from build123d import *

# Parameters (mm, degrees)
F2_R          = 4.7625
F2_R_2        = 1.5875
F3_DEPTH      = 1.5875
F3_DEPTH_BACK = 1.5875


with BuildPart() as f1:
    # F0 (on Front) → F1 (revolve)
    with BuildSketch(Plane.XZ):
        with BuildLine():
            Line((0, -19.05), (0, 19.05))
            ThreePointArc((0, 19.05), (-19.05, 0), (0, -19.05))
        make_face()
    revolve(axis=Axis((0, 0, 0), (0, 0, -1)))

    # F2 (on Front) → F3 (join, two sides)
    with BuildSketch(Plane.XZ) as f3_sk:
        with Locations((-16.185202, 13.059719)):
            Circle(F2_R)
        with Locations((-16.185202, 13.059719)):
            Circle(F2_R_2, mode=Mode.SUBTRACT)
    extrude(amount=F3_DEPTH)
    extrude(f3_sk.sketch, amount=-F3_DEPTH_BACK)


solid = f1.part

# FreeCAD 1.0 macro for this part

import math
import FreeCAD as App
import Part
import Sketcher
from FreeCAD import Vector
Q = App.Units.Quantity

doc = App.newDocument("Part")
body = doc.addObject("PartDesign::Body", "Body")

sketch1 = body.newObject("Sketcher::SketchObject", "Sketch")
sketch1.AttachmentSupport = (doc.getObject("XZ_Plane"), [""])
sketch1.MapMode = "FlatFace"
sketch1.addGeometry([
    Part.LineSegment(Vector(0, -19.05, 0), Vector(0, 19.05, 0)),
    Part.ArcOfCircle(Part.Circle(Vector(0, 0, 0), Vector(0, 0, 1), 19.05), math.radians(90), math.radians(270)),
], False)
sketch1.addConstraint([
    Sketcher.Constraint("Coincident", 0, 1, 1, 2),
    Sketcher.Constraint("Coincident", 1, 1, 0, 2),
    Sketcher.Constraint("Vertical", 0),
    Sketcher.Constraint("Coincident", 1, 3, -1, 1),
    Sketcher.Constraint("PointOnObject", 0, 1, -2),
    Sketcher.Constraint("Radius", 1, Q("0.75 in")),
])
revolution = body.newObject("PartDesign::Revolution", "Revolution")
revolution.Profile = sketch1
revolution.ReferenceAxis = (sketch1, ["V_Axis"])
revolution.Angle = 360

sketch2 = body.newObject("Sketcher::SketchObject", "Sketch001")
sketch2.AttachmentSupport = (doc.getObject("XZ_Plane"), [""])
sketch2.MapMode = "FlatFace"
sketch2.addGeometry([
    Part.Circle(Vector(-16.185202, 13.059719, 0), Vector(0, 0, 1), 4.7625),
    Part.Circle(Vector(-16.185202, 13.059719, 0), Vector(0, 0, 1), 1.5875),
], False)
sketch2.addConstraint([
    Sketcher.Constraint("Coincident", 1, 3, 0, 3),
    Sketcher.Constraint("Diameter", 0, Q("0.375 in")),
    Sketcher.Constraint("Diameter", 1, Q("0.125 in")),
    Sketcher.Constraint("DistanceY", -1, 1, 0, 3, Q("13.059719 mm")),
    Sketcher.Constraint("DistanceX", 0, 3, -1, 1, Q("16.185202 mm")),
])
pad1 = body.newObject("PartDesign::Pad", "Pad")
pad1.Profile = sketch2
pad1.Type = "TwoLengths"
pad1.Length = Q("0.0625 in")
pad1.Length2 = Q("0.0625 in")

doc.recompute()
